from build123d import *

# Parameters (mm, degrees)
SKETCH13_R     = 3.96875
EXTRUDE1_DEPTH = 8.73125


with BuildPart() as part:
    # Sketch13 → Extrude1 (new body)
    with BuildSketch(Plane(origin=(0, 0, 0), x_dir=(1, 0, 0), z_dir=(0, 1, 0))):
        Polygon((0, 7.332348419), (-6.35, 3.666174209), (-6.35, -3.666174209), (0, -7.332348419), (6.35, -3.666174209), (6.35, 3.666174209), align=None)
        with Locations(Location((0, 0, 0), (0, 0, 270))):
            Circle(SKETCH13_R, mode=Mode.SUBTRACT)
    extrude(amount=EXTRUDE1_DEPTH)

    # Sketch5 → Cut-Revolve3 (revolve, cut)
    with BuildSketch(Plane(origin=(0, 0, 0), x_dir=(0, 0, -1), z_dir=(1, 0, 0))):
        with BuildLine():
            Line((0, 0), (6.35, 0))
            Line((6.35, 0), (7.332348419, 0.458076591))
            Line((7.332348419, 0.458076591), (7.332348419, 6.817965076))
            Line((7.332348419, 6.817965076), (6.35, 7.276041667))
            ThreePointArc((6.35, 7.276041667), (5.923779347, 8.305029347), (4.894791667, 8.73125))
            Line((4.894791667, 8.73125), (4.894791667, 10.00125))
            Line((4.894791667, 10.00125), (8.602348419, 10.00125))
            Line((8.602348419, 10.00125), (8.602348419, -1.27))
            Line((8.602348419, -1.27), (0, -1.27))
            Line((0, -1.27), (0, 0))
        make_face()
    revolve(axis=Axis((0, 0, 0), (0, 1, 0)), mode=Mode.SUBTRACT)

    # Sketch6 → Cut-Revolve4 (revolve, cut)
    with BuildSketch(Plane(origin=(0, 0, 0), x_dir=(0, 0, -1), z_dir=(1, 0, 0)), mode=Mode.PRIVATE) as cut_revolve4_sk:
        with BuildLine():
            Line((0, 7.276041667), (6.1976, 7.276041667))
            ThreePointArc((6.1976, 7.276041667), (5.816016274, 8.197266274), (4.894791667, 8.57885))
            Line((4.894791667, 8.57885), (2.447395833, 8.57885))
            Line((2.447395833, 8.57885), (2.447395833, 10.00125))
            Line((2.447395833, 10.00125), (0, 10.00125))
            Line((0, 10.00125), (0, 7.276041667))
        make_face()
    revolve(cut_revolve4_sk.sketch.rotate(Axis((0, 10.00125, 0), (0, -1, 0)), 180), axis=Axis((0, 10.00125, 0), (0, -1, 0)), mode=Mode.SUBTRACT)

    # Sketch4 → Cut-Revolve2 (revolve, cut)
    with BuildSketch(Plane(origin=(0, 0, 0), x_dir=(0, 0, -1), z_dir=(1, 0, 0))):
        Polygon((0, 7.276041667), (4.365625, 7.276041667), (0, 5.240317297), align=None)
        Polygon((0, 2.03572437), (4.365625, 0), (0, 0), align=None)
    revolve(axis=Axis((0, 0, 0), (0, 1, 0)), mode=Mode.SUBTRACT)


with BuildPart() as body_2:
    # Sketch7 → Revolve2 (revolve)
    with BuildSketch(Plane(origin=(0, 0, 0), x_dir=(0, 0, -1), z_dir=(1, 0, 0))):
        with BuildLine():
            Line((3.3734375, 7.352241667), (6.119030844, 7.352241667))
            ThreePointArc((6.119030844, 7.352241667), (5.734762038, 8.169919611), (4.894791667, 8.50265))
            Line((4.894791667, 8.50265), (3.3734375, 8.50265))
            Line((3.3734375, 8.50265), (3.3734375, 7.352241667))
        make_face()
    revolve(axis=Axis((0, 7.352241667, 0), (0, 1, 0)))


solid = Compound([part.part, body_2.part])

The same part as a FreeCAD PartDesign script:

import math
import FreeCAD as App
import Part
import Sketcher
Q = App.Units.Quantity

doc = App.newDocument("Part")
body = doc.addObject("PartDesign::Body", "Body")

# Sketch on XZ plane
sketch1 = body.newObject("Sketcher::SketchObject", "Sketch")
sketch1.AttachmentSupport = (doc.getObject("XZ_Plane"), [""])
sketch1.MapMode = "FlatFace"
sketch1.addGeometry(Part.LineSegment(App.Vector(0, -7.3, 0), App.Vector(-6.3, -3.7, 0)), False)
sketch1.addGeometry(Part.LineSegment(App.Vector(-6.3, -3.7, 0), App.Vector(-6.3, 3.7, 0)), False)
sketch1.addGeometry(Part.LineSegment(App.Vector(-6.3, 3.7, 0), App.Vector(0, 7.3, 0)), False)
sketch1.addGeometry(Part.LineSegment(App.Vector(0, 7.3, 0), App.Vector(6.3, 3.7, 0)), False)
sketch1.addGeometry(Part.LineSegment(App.Vector(6.3, 3.7, 0), App.Vector(6.3, -3.7, 0)), False)
sketch1.addGeometry(Part.LineSegment(App.Vector(6.3, -3.7, 0), App.Vector(0, -7.3, 0)), False)
sketch1.addGeometry(Part.Circle(App.Vector(0, 0, 0), App.Vector(0, 0, 1), 4), False)
sketch1.addConstraint(Sketcher.Constraint("Coincident", 0, 2, 1, 1))
sketch1.addConstraint(Sketcher.Constraint("Coincident", 1, 2, 2, 1))
sketch1.addConstraint(Sketcher.Constraint("Coincident", 2, 2, 3, 1))
sketch1.addConstraint(Sketcher.Constraint("Coincident", 3, 2, 4, 1))
sketch1.addConstraint(Sketcher.Constraint("Coincident", 4, 2, 5, 1))
sketch1.addConstraint(Sketcher.Constraint("Coincident", 5, 2, 0, 1))
sketch1.addConstraint(Sketcher.Constraint("Vertical", 1))
sketch1.addConstraint(Sketcher.Constraint("Vertical", 4))
sketch1.addConstraint(Sketcher.Constraint("Coincident", 6, 3, -1, 1))
sketch1.addConstraint(Sketcher.Constraint("Symmetric", 0, 2, 3, 2, -1, 1))
sketch1.addConstraint(Sketcher.Constraint("Symmetric", 2, 2, 5, 2, -1, 1))
sketch1.addConstraint(Sketcher.Constraint("PointOnObject", 2, 2, -2))
sketch1.addConstraint(Sketcher.Constraint("Parallel", 2, 5))
sketch1.addConstraint(Sketcher.Constraint("Horizontal", 1, 2, 3, 2))
sketch1.addConstraint(Sketcher.Constraint("Diameter", 6, Q("0.3125 in")))
sketch1.addConstraint(Sketcher.Constraint("Angle", 0, Q("150 deg")))
sketch1.addConstraint(Sketcher.Constraint("DistanceX", 1, 2, 3, 2, Q("0.5 in")))
sketch1.addConstraint(Sketcher.Constraint("DistanceY", 1, 1, 1, 2, Q("7.332348 mm")))
pad1 = body.newObject("PartDesign::Pad", "Pad")
pad1.Profile = sketch1
pad1.Length = Q("0.34375 in")
pad1.Reversed = True

# Sketch on YZ plane
sketch2 = body.newObject("Sketcher::SketchObject", "Sketch001")
sketch2.AttachmentSupport = (doc.getObject("YZ_Plane"), [""])
sketch2.MapMode = "FlatFace"
sketch2.addGeometry(Part.LineSegment(App.Vector(0, -6.3, 0), App.Vector(0, 0, 0)), False)
sketch2.addGeometry(Part.LineSegment(App.Vector(0, 0, 0), App.Vector(-1.3, 0, 0)), False)
sketch2.addGeometry(Part.LineSegment(App.Vector(-1.3, 0, 0), App.Vector(-1.3, -8.6, 0)), False)
sketch2.addGeometry(Part.LineSegment(App.Vector(-1.3, -8.6, 0), App.Vector(10, -8.6, 0)), False)
sketch2.addGeometry(Part.LineSegment(App.Vector(10, -8.6, 0), App.Vector(10, -4.9, 0)), False)
sketch2.addGeometry(Part.LineSegment(App.Vector(10, -4.9, 0), App.Vector(8.7, -4.9, 0)), False)
sketch2.addGeometry(Part.ArcOfCircle(Part.Circle(App.Vector(7.3, -4.9, 0), App.Vector(0, 0, 1), 1.5), math.radians(-90), math.radians(0)), False)
sketch2.addGeometry(Part.LineSegment(App.Vector(7.3, -6.3, 0), App.Vector(6.8, -7.3, 0)), False)
sketch2.addGeometry(Part.LineSegment(App.Vector(6.8, -7.3, 0), App.Vector(0.5, -7.3, 0)), False)
sketch2.addGeometry(Part.LineSegment(App.Vector(0.5, -7.3, 0), App.Vector(0, -6.3, 0)), False)
sketch2.addConstraint(Sketcher.Constraint("Coincident", 0, 2, 1, 1))
sketch2.addConstraint(Sketcher.Constraint("Coincident", 1, 2, 2, 1))
sketch2.addConstraint(Sketcher.Constraint("Coincident", 2, 2, 3, 1))
sketch2.addConstraint(Sketcher.Constraint("Coincident", 3, 2, 4, 1))
sketch2.addConstraint(Sketcher.Constraint("Coincident", 4, 2, 5, 1))
sketch2.addConstraint(Sketcher.Constraint("Coincident", 5, 2, 6, 2))
sketch2.addConstraint(Sketcher.Constraint("Coincident", 6, 1, 7, 1))
sketch2.addConstraint(Sketcher.Constraint("Coincident", 7, 2, 8, 1))
sketch2.addConstraint(Sketcher.Constraint("Coincident", 8, 2, 9, 1))
sketch2.addConstraint(Sketcher.Constraint("Coincident", 9, 2, 0, 1))
sketch2.addConstraint(Sketcher.Constraint("Vertical", 0))
sketch2.addConstraint(Sketcher.Constraint("Horizontal", 1))
sketch2.addConstraint(Sketcher.Constraint("Vertical", 2))
sketch2.addConstraint(Sketcher.Constraint("Horizontal", 3))
sketch2.addConstraint(Sketcher.Constraint("Vertical", 4))
sketch2.addConstraint(Sketcher.Constraint("Horizontal", 5))
sketch2.addConstraint(Sketcher.Constraint("Horizontal", 8))
sketch2.addConstraint(Sketcher.Constraint("Coincident", 0, 2, -1, 1))
sketch2.addConstraint(Sketcher.Constraint("Horizontal", 6, 3, 4, 2))
sketch2.addConstraint(Sketcher.Constraint("Horizontal", 6, 1, 9, 2))
sketch2.addConstraint(Sketcher.Constraint("Equal", 1, 5))
sketch2.addConstraint(Sketcher.Constraint("Equal", 7, 9))
sketch2.addConstraint(Sketcher.Constraint("Angle", 7, Q("-115 deg")))
sketch2.addConstraint(Sketcher.Constraint("DistanceX", 1, 2, 1, 1, Q("0.05 in")))
sketch2.addConstraint(Sketcher.Constraint("DistanceY", 0, 1, 0, 2, Q("0.25 in")))
sketch2.addConstraint(Sketcher.Constraint("DistanceY", 3, 2, 7, 2, Q("0.05 in")))
sketch2.addConstraint(Sketcher.Constraint("DistanceX", -1, 1, 5, 2, Q("0.34375 in")))
sketch2.addConstraint(Sketcher.Constraint("Radius", 6, Q("1.455208 mm")))
sketch2.addConstraint(Sketcher.Constraint("Distance", 7, Q("1.083902 mm")))
sketch2.addConstraint(Sketcher.Constraint("DistanceX", 8, 2, 8, 1, Q("6.359888 mm")))
groove = body.newObject("PartDesign::Groove", "Groove")
groove.Profile = sketch2
groove.ReferenceAxis = (sketch2, ["H_Axis"])
groove.Angle = 360

# Sketch on YZ plane
sketch3 = body.newObject("Sketcher::SketchObject", "Sketch002")
sketch3.AttachmentSupport = (doc.getObject("YZ_Plane"), [""])
sketch3.MapMode = "FlatFace"
sketch3.addGeometry(Part.LineSegment(App.Vector(7.3, 0, 0), App.Vector(7.3, -6.2, 0)), False)
sketch3.addGeometry(Part.ArcOfCircle(Part.Circle(App.Vector(7.3, -4.9, 0), App.Vector(0, 0, 1), 1.3), math.radians(-90), math.radians(0)), False)
sketch3.addGeometry(Part.LineSegment(App.Vector(8.6, -4.9, 0), App.Vector(8.6, -2.4, 0)), False)
sketch3.addGeometry(Part.LineSegment(App.Vector(8.6, -2.4, 0), App.Vector(10, -2.4, 0)), False)
sketch3.addGeometry(Part.LineSegment(App.Vector(10, -2.4, 0), App.Vector(10, 0, 0)), False)
sketch3.addGeometry(Part.LineSegment(App.Vector(10, 0, 0), App.Vector(7.3, 0, 0)), False)
sketch3.addConstraint(Sketcher.Constraint("Coincident", 0, 2, 1, 1))
sketch3.addConstraint(Sketcher.Constraint("Tangent", 1, 2, 2, 1))
sketch3.addConstraint(Sketcher.Constraint("Coincident", 2, 2, 3, 1))
sketch3.addConstraint(Sketcher.Constraint("Coincident", 3, 2, 4, 1))
sketch3.addConstraint(Sketcher.Constraint("Coincident", 4, 2, 5, 1))
sketch3.addConstraint(Sketcher.Constraint("Coincident", 5, 2, 0, 1))
sketch3.addConstraint(Sketcher.Constraint("Vertical", 0))
sketch3.addConstraint(Sketcher.Constraint("Vertical", 2))
sketch3.addConstraint(Sketcher.Constraint("Horizontal", 3))
sketch3.addConstraint(Sketcher.Constraint("Vertical", 4))
sketch3.addConstraint(Sketcher.Constraint("Horizontal", 5))
sketch3.addConstraint(Sketcher.Constraint("PointOnObject", 4, 2, -1))
sketch3.addConstraint(Sketcher.Constraint("Vertical", 1, 3, 0, 2))
sketch3.addConstraint(Sketcher.Constraint("Equal", 2, 4))
sketch3.addConstraint(Sketcher.Constraint("DistanceX", 3, 1, 3, 2, Q("0.056 in")))
sketch3.addConstraint(Sketcher.Constraint("DistanceY", 0, 2, 0, 1, Q("0.244 in")))
sketch3.addConstraint(Sketcher.Constraint("Radius", 1, Q("1.302808 mm")))
sketch3.addConstraint(Sketcher.Constraint("DistanceX", -1, 1, 1, 3, Q("7.276042 mm")))
groove2 = body.newObject("PartDesign::Groove", "Groove001")
groove2.Profile = sketch3
groove2.ReferenceAxis = (sketch3, ["H_Axis"])
groove2.Angle = 360

# Sketch on YZ plane
sketch4 = body.newObject("Sketcher::SketchObject", "Sketch003")
sketch4.AttachmentSupport = (doc.getObject("YZ_Plane"), [""])
sketch4.MapMode = "FlatFace"
sketch4.addGeometry(Part.LineSegment(App.Vector(7.3, -4.4, 0), App.Vector(7.3, 0, 0)), False)
sketch4.addGeometry(Part.LineSegment(App.Vector(7.3, 0, 0), App.Vector(5.2, 0, 0)), False)
sketch4.addGeometry(Part.LineSegment(App.Vector(5.2, 0, 0), App.Vector(7.3, -4.4, 0)), False)
sketch4.addGeometry(Part.LineSegment(App.Vector(0, -4.4, 0), App.Vector(2, 0, 0)), False)
sketch4.addGeometry(Part.LineSegment(App.Vector(2, 0, 0), App.Vector(0, 0, 0)), False)
sketch4.addGeometry(Part.LineSegment(App.Vector(0, 0, 0), App.Vector(0, -4.4, 0)), False)
sketch4.addConstraint(Sketcher.Constraint("Coincident", 0, 2, 1, 1))
sketch4.addConstraint(Sketcher.Constraint("Coincident", 1, 2, 2, 1))
sketch4.addConstraint(Sketcher.Constraint("Coincident", 2, 2, 0, 1))
sketch4.addConstraint(Sketcher.Constraint("Coincident", 3, 2, 4, 1))
sketch4.addConstraint(Sketcher.Constraint("Coincident", 4, 2, 5, 1))
sketch4.addConstraint(Sketcher.Constraint("Coincident", 5, 2, 3, 1))
sketch4.addConstraint(Sketcher.Constraint("Vertical", 0))
sketch4.addConstraint(Sketcher.Constraint("Horizontal", 1))
sketch4.addConstraint(Sketcher.Constraint("Horizontal", 4))
sketch4.addConstraint(Sketcher.Constraint("Vertical", 5))
sketch4.addConstraint(Sketcher.Constraint("Coincident", 4, 2, -1, 1))
sketch4.addConstraint(Sketcher.Constraint("PointOnObject", 0, 2, -1))
sketch4.addConstraint(Sketcher.Constraint("Horizontal", 2, 2, 5, 2))
sketch4.addConstraint(Sketcher.Constraint("Equal", 1, 4))
sketch4.addConstraint(Sketcher.Constraint("Angle", 2, Q("-65 deg")))
sketch4.addConstraint(Sketcher.Constraint("DistanceY", 0, 1, 0, 2, Q("0.171875 in")))
sketch4.addConstraint(Sketcher.Constraint("DistanceX", -1, 1, 0, 2, Q("7.276042 mm")))
groove3 = body.newObject("PartDesign::Groove", "Groove002")
groove3.Profile = sketch4
groove3.ReferenceAxis = (sketch4, ["H_Axis"])
groove3.Angle = 360
body2 = doc.addObject("PartDesign::Body", "Body001")

# Sketch on YZ plane
sketch5 = body2.newObject("Sketcher::SketchObject", "Sketch004")
sketch5.AttachmentSupport = (doc.getObject("YZ_Plane001"), [""])
sketch5.MapMode = "FlatFace"
sketch5.addGeometry(Part.LineSegment(App.Vector(7.4, -3.4, 0), App.Vector(7.4, -6.1, 0)), False)
sketch5.addGeometry(Part.ArcOfCircle(Part.Circle(App.Vector(7.3, -4.9, 0), App.Vector(0, 0, 1), 1.2), math.radians(-86), math.radians(0)), False)
sketch5.addGeometry(Part.LineSegment(App.Vector(8.5, -4.9, 0), App.Vector(8.5, -3.4, 0)), False)
sketch5.addGeometry(Part.LineSegment(App.Vector(8.5, -3.4, 0), App.Vector(7.4, -3.4, 0)), False)
sketch5.addConstraint(Sketcher.Constraint("Coincident", 0, 2, 1, 1))
sketch5.addConstraint(Sketcher.Constraint("Tangent", 1, 2, 2, 1))
sketch5.addConstraint(Sketcher.Constraint("Coincident", 2, 2, 3, 1))
sketch5.addConstraint(Sketcher.Constraint("Coincident", 3, 2, 0, 1))
sketch5.addConstraint(Sketcher.Constraint("Vertical", 0))
sketch5.addConstraint(Sketcher.Constraint("Vertical", 2))
sketch5.addConstraint(Sketcher.Constraint("Horizontal", 3))
sketch5.addConstraint(Sketcher.Constraint("Radius", 1, Q("1.226608 mm")))
sketch5.addConstraint(Sketcher.Constraint("DistanceX", 1, 3, 0, 2, Q("0.003 in")))
sketch5.addConstraint(Sketcher.Constraint("DistanceY", 0, 2, 0, 1, Q("2.745593 mm")))
sketch5.addConstraint(Sketcher.Constraint("DistanceX", -1, 1, 1, 3, Q("7.276042 mm")))
sketch5.addConstraint(Sketcher.Constraint("DistanceY", 1, 3, -1, 1, Q("4.894792 mm")))
revolution = body2.newObject("PartDesign::Revolution", "Revolution")
revolution.Profile = sketch5
revolution.ReferenceAxis = (sketch5, ["H_Axis"])
revolution.Angle = 360

doc.recompute()
